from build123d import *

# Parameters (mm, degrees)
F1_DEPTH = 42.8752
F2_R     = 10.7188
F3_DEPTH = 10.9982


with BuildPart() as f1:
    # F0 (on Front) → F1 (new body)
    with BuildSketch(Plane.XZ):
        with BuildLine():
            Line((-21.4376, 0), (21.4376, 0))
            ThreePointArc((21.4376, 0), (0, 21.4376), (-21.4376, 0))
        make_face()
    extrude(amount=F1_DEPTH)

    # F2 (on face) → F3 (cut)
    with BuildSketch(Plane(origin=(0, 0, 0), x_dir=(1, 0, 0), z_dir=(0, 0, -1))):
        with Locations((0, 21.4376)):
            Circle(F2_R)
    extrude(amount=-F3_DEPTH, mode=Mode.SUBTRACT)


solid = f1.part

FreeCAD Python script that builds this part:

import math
import FreeCAD as App
import Part
import Sketcher
Q = App.Units.Quantity

doc = App.newDocument("Part")
body = doc.addObject("PartDesign::Body", "Body")

sketch1 = body.newObject("Sketcher::SketchObject", "Sketch")
sketch1.AttachmentSupport = (doc.getObject("XZ_Plane"), [""])
sketch1.MapMode = "FlatFace"
sketch1.addGeometry(Part.LineSegment(App.Vector(-21, 0, 0), App.Vector(21, 0, 0)), False)
sketch1.addGeometry(Part.ArcOfCircle(Part.Circle(App.Vector(0, 0, 0), App.Vector(0, 0, 1), 21), math.radians(0), math.radians(180)), False)
sketch1.addConstraint(Sketcher.Constraint("Coincident", 0, 1, 1, 2))
sketch1.addConstraint(Sketcher.Constraint("Coincident", 1, 1, 0, 2))
sketch1.addConstraint(Sketcher.Constraint("Horizontal", 0))
sketch1.addConstraint(Sketcher.Constraint("Coincident", 1, 3, -1, 1))
sketch1.addConstraint(Sketcher.Constraint("PointOnObject", 0, 1, -1))
sketch1.addConstraint(Sketcher.Constraint("Radius", 1, Q("0.844 in")))
pad1 = body.newObject("PartDesign::Pad", "Pad")
pad1.Profile = sketch1
pad1.Length = Q("1.688 in")

sketch2 = body.newObject("Sketcher::SketchObject", "Sketch001")
sketch2.AttachmentSupport = (doc.getObject("XY_Plane"), [""])
sketch2.MapMode = "FlatFace"
sketch2.addGeometry(Part.Circle(App.Vector(0, -21, 0), App.Vector(0, 0, 1), 11), False)
sketch2.addConstraint(Sketcher.Constraint("PointOnObject", 0, 3, -2))
sketch2.addConstraint(Sketcher.Constraint("Diameter", 0, Q("0.844 in")))
sketch2.addConstraint(Sketcher.Constraint("DistanceY", 0, 3, -1, 1, Q("0.844 in")))
pocket1 = body.newObject("PartDesign::Pocket", "Pocket")
pocket1.Profile = sketch2
pocket1.Length = Q("0.433 in")
pocket1.Reversed = True

doc.recompute()
